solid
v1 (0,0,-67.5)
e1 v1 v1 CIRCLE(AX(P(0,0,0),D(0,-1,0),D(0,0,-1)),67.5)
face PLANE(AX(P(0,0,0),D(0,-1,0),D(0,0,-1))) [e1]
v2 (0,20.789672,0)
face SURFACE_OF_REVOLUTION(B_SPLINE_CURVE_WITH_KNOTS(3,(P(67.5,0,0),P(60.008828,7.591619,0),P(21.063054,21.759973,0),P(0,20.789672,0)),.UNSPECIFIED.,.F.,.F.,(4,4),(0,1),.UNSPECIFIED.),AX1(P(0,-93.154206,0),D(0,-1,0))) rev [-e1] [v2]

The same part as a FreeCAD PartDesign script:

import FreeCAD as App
import Part
import Sketcher

V = App.Vector

doc = App.newDocument("Part")
params = doc.addObject("Spreadsheet::Sheet", "Params")
for row, (alias, value) in enumerate([
    ("revolution_angle", "360 deg"),
], start=1):
    params.set(f"A{row}", alias)
    params.set(f"B{row}", "=" + value)
    params.setAlias(f"B{row}", alias)

body = doc.addObject("PartDesign::Body", "Body")

sketch1 = body.newObject("Sketcher::SketchObject", "Sketch")
sketch1.AttachmentSupport = (doc.getObject("XY_Plane"), [""])
sketch1.MapMode = "FlatFace"
sketch1.addGeometry(Part.LineSegment(V(0, 20.789672, 0), V(0, 0, 0)), False)
sketch1.addGeometry(Part.LineSegment(V(0, 0, 0), V(67.5, 0, 0)), False)
sketch1.addGeometry(Part.BSplineCurve([V(67.5, 0, 0), V(60.008828, 7.591619, 0), V(21.063054, 21.759973, 0), V(0, 20.789672, 0)], [4, 4], [0, 1], False, 3, [1, 1, 1, 1], False), False)
sketch1.addConstraint(Sketcher.Constraint("Block", 2))
sketch1.addConstraint(Sketcher.Constraint("Coincident", 0, 2, 1, 1))
sketch1.addConstraint(Sketcher.Constraint("Coincident", 1, 2, 2, 1))
sketch1.addConstraint(Sketcher.Constraint("Coincident", 2, 2, 0, 1))
sketch1.addConstraint(Sketcher.Constraint("Vertical", 0))
sketch1.addConstraint(Sketcher.Constraint("Horizontal", 1))
revolution = body.newObject("PartDesign::Revolution", "Revolution")
revolution.Profile = sketch1
revolution.ReferenceAxis = (sketch1, ["V_Axis"])
revolution.setExpression("Angle", "Params.revolution_angle")

doc.recompute()
